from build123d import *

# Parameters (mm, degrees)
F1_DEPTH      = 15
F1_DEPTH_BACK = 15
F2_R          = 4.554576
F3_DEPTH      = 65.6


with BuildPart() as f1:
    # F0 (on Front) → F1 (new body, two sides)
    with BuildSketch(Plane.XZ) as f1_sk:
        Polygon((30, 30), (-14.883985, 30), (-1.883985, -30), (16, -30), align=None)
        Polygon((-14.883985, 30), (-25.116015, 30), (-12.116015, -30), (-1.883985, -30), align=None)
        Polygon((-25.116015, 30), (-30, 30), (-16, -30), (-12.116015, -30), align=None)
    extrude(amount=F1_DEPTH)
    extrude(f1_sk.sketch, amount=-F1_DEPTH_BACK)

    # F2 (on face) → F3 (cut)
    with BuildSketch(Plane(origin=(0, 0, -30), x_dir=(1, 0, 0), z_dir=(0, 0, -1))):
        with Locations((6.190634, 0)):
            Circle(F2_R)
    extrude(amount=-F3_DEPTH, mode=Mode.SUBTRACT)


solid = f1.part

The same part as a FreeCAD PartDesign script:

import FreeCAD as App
import Part
import Sketcher

V = App.Vector
Q = App.Units.Quantity


def add_polygon(sketch, points):
    """Adds a closed chain of lines whose ends are joined by coincident constraints."""
    first, n = sketch.GeometryCount, len(points)
    for a, b in zip(points, points[1:] + points[:1]):
        sketch.addGeometry(Part.LineSegment(App.Vector(*a, 0), App.Vector(*b, 0)), False)
    for i in range(n):
        sketch.addConstraint(Sketcher.Constraint("Coincident", first + i, 2, first + (i + 1) % n, 1))

doc = App.newDocument("Part")
body = doc.addObject("PartDesign::Body", "Body")

sketch1 = doc.addObject("Sketcher::SketchObject", "Sketch")
body.addObject(sketch1)
sketch1.AttachmentSupport = (doc.XZ_Plane, [""])
sketch1.MapMode = "FlatFace"
add_polygon(sketch1, [(30, 30), (-30, 30), (-16, -30), (16, -30)])
sketch1.addConstraint(Sketcher.Constraint("Horizontal", 0))
sketch1.addConstraint(Sketcher.Constraint("Horizontal", 2))
sketch1.addConstraint(Sketcher.Constraint("Equal", 1, 3))
sketch1.addConstraint(Sketcher.Constraint("DistanceX", 0, 2, 0, 1, Q("60 mm")))
sketch1.addConstraint(Sketcher.Constraint("DistanceX", 2, 1, 2, 2, Q("32 mm")))
sketch1.addConstraint(Sketcher.Constraint("DistanceX", 0, 2, -1, 1, Q("30 mm")))
sketch1.addConstraint(Sketcher.Constraint("DistanceY", -1, 1, 0, 2, Q("30 mm")))
sketch1.addConstraint(Sketcher.Constraint("DistanceY", 1, 2, -1, 1, Q("30 mm")))
pad1 = doc.addObject("PartDesign::Pad", "Pad")
body.addObject(pad1)
pad1.Profile = sketch1
pad1.Type = "TwoLengths"
pad1.Length = 15
pad1.Length2 = 15

sketch2 = doc.addObject("Sketcher::SketchObject", "Sketch001")
body.addObject(sketch2)
sketch2.AttachmentSupport = (doc.XY_Plane, [""])
sketch2.MapMode = "FlatFace"
sketch2.AttachmentOffset = App.Placement(V(0, 0, -30), App.Rotation())
sketch2.addGeometry(Part.Circle(V(6.190634, 0, 0), V(0, 0, 1), 4.554576), False)
sketch2.addConstraint(Sketcher.Constraint("PointOnObject", 0, 3, -1))
sketch2.addConstraint(Sketcher.Constraint("Diameter", 0, Q("9.109152 mm")))
sketch2.addConstraint(Sketcher.Constraint("DistanceX", -1, 1, 0, 3, Q("6.190634 mm")))
pocket1 = doc.addObject("PartDesign::Pocket", "Pocket")
body.addObject(pocket1)
pocket1.Profile = sketch2
pocket1.Length = 65.6
pocket1.Reversed = True

doc.recompute()
